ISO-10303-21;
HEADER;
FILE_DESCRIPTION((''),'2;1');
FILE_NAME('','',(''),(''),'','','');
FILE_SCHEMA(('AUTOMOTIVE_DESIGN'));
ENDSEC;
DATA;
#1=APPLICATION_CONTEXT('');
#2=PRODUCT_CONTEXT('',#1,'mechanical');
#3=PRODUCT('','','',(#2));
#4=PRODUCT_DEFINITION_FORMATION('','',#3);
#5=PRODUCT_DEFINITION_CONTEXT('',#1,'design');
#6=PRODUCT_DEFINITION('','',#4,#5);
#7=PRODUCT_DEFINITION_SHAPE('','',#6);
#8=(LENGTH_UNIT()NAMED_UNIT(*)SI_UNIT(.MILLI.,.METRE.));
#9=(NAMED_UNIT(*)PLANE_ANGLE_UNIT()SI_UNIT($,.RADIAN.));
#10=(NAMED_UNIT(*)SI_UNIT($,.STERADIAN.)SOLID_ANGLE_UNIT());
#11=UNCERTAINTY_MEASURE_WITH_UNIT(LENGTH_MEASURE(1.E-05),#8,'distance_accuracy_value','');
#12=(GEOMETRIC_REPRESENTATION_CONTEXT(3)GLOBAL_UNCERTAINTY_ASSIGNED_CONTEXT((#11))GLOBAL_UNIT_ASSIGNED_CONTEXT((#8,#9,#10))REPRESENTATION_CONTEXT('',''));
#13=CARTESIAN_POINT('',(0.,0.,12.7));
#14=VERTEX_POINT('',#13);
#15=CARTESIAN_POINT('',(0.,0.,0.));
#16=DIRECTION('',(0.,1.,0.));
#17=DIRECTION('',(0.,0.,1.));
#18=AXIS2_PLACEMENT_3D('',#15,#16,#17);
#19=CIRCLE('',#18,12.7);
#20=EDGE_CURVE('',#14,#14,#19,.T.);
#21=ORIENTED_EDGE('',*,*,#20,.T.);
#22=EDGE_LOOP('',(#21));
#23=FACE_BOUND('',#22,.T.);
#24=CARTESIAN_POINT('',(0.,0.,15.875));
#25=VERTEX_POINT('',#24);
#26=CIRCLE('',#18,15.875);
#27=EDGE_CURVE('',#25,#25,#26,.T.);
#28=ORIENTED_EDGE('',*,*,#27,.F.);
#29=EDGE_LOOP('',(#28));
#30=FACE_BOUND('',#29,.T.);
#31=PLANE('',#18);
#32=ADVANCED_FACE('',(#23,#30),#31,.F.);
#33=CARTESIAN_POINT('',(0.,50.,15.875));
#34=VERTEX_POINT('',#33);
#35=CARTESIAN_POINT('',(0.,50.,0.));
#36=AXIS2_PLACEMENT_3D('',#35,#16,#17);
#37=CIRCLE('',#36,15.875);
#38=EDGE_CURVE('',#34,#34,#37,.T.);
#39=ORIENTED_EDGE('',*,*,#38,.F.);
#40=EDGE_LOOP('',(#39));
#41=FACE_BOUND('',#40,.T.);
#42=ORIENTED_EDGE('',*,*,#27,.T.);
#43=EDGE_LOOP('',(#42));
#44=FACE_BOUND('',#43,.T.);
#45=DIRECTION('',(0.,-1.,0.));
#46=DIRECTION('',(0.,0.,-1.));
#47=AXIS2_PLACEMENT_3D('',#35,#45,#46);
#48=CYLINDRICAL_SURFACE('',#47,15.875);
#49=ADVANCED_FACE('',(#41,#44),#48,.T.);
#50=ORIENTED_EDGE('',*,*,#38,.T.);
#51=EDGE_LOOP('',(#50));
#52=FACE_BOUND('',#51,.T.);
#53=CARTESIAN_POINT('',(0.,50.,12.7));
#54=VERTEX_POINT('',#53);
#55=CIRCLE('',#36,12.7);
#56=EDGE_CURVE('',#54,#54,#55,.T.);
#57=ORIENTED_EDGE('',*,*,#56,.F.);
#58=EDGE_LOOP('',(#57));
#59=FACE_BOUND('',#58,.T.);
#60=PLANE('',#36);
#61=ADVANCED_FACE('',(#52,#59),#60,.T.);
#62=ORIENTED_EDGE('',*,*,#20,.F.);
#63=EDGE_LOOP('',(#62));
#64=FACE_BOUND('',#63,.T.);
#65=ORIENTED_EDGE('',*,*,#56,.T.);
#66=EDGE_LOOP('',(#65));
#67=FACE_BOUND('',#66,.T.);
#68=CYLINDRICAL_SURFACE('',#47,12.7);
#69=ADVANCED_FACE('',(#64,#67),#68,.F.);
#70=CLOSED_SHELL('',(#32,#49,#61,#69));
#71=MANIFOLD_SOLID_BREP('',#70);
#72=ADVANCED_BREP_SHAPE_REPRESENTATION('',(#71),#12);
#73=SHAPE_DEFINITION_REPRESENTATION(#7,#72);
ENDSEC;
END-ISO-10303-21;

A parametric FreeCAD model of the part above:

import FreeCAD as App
import Part
import Sketcher

V = App.Vector
Q = App.Units.Quantity

doc = App.newDocument("Part")
body = doc.addObject("PartDesign::Body", "Body")

# Sketch on XZ plane
sketch1 = doc.addObject("Sketcher::SketchObject", "Sketch")
body.addObject(sketch1)
sketch1.AttachmentSupport = (doc.XZ_Plane, [""])
sketch1.MapMode = "FlatFace"
sketch1.addGeometry(Part.Circle(V(0, 0, 0), V(0, 0, 1), 15.875), False)
sketch1.addGeometry(Part.Circle(V(0, 0, 0), V(0, 0, 1), 12.7), False)
sketch1.addConstraint(Sketcher.Constraint("Coincident", 0, 3, -1, 1))
sketch1.addConstraint(Sketcher.Constraint("Coincident", 1, 3, -1, 1))
sketch1.addConstraint(Sketcher.Constraint("Diameter", 1, Q("1 in")))
sketch1.addConstraint(Sketcher.Constraint("Diameter", 0, Q("1.25 in")))
pad1 = doc.addObject("PartDesign::Pad", "Pad")
body.addObject(pad1)
pad1.Profile = sketch1
pad1.Length = 50
pad1.Reversed = True

doc.recompute()
